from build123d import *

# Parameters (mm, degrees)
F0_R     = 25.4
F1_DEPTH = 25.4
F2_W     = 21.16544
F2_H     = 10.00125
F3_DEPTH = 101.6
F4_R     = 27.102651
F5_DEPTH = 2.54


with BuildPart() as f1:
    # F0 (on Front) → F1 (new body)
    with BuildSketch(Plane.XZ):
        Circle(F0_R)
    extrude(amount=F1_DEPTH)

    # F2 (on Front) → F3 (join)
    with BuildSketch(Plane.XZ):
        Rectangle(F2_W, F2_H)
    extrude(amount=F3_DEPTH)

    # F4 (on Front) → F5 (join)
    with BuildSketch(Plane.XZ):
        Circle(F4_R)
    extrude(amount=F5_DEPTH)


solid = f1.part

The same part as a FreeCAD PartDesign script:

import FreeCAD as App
import Part
import Sketcher
from FreeCAD import Vector
Q = App.Units.Quantity


def add_polygon(sketch, points):
    """Adds a closed chain of lines whose ends are joined by coincident constraints."""
    first, n = sketch.GeometryCount, len(points)
    for a, b in zip(points, points[1:] + points[:1]):
        sketch.addGeometry(Part.LineSegment(App.Vector(*a, 0), App.Vector(*b, 0)), False)
    for i in range(n):
        sketch.addConstraint(Sketcher.Constraint("Coincident", first + i, 2, first + (i + 1) % n, 1))

doc = App.newDocument("Part")
body = doc.addObject("PartDesign::Body", "Body")

sketch1 = body.newObject("Sketcher::SketchObject", "Sketch")
sketch1.AttachmentSupport = (doc.getObject("XZ_Plane"), [""])
sketch1.MapMode = "FlatFace"
sketch1.addGeometry(Part.Circle(Vector(0, 0, 0), Vector(0, 0, 1), 25), False)
sketch1.addConstraint([
    Sketcher.Constraint("Coincident", 0, 3, -1, 1),
    Sketcher.Constraint("Diameter", 0, Q("2 in")),
])
pad1 = body.newObject("PartDesign::Pad", "Pad")
pad1.Profile = sketch1
pad1.Length = Q("1 in")

sketch2 = body.newObject("Sketcher::SketchObject", "Sketch001")
sketch2.AttachmentSupport = (doc.getObject("XZ_Plane"), [""])
sketch2.MapMode = "FlatFace"
add_polygon(sketch2, [(-11, 5), (-11, -5), (11, -5), (11, 5)])
sketch2.addConstraint([
    Sketcher.Constraint("Vertical", 0),
    Sketcher.Constraint("Horizontal", 1),
    Sketcher.Constraint("Vertical", 2),
    Sketcher.Constraint("Horizontal", 3),
    Sketcher.Constraint("Symmetric", 0, 2, 2, 2, -1, 1),
    Sketcher.Constraint("DistanceX", 1, 1, 1, 2, Q("21.16544 mm")),
    Sketcher.Constraint("DistanceY", 0, 2, 0, 1, Q("10.00125 mm")),
])
pad2 = body.newObject("PartDesign::Pad", "Pad001")
pad2.Profile = sketch2
pad2.Length = Q("4 in")

sketch3 = body.newObject("Sketcher::SketchObject", "Sketch002")
sketch3.AttachmentSupport = (doc.getObject("XZ_Plane"), [""])
sketch3.MapMode = "FlatFace"
sketch3.addGeometry(Part.Circle(Vector(0, 0, 0), Vector(0, 0, 1), 27), False)
sketch3.addConstraint([
    Sketcher.Constraint("Coincident", 0, 3, -1, 1),
    Sketcher.Constraint("Diameter", 0, Q("54.205302 mm")),
])
pad3 = body.newObject("PartDesign::Pad", "Pad002")
pad3.Profile = sketch3
pad3.Length = Q("0.1 in")

doc.recompute()
